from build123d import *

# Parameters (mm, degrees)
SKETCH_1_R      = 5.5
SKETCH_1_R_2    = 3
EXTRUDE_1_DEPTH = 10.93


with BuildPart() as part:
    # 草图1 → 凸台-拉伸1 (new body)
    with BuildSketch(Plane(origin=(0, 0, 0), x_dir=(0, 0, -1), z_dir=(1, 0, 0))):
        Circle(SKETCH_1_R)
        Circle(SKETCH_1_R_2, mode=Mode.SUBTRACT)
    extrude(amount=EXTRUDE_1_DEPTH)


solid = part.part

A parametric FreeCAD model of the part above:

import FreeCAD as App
import Part
import Sketcher

V = App.Vector

doc = App.newDocument("Part")
body = doc.addObject("PartDesign::Body", "Body")

# Sketch on YZ plane
sketch1 = body.newObject("Sketcher::SketchObject", "Sketch")
sketch1.AttachmentSupport = (doc.getObject("YZ_Plane"), [""])
sketch1.MapMode = "FlatFace"
sketch1.addGeometry([
    Part.Circle(V(0, 0, 0), V(0, 0, 1), 5.5),
    Part.Circle(V(0, 0, 0), V(0, 0, 1), 3),
], False)
sketch1.addConstraint([
    Sketcher.Constraint("Coincident", 0, 3, -1, 1),
    Sketcher.Constraint("Coincident", 1, 3, -1, 1),
    Sketcher.Constraint("Diameter", 0, 11.0),
    Sketcher.Constraint("Diameter", 1, 6.0),
])
pad1 = body.newObject("PartDesign::Pad", "Pad")
pad1.Profile = sketch1
pad1.Length = 10.93

doc.recompute()
